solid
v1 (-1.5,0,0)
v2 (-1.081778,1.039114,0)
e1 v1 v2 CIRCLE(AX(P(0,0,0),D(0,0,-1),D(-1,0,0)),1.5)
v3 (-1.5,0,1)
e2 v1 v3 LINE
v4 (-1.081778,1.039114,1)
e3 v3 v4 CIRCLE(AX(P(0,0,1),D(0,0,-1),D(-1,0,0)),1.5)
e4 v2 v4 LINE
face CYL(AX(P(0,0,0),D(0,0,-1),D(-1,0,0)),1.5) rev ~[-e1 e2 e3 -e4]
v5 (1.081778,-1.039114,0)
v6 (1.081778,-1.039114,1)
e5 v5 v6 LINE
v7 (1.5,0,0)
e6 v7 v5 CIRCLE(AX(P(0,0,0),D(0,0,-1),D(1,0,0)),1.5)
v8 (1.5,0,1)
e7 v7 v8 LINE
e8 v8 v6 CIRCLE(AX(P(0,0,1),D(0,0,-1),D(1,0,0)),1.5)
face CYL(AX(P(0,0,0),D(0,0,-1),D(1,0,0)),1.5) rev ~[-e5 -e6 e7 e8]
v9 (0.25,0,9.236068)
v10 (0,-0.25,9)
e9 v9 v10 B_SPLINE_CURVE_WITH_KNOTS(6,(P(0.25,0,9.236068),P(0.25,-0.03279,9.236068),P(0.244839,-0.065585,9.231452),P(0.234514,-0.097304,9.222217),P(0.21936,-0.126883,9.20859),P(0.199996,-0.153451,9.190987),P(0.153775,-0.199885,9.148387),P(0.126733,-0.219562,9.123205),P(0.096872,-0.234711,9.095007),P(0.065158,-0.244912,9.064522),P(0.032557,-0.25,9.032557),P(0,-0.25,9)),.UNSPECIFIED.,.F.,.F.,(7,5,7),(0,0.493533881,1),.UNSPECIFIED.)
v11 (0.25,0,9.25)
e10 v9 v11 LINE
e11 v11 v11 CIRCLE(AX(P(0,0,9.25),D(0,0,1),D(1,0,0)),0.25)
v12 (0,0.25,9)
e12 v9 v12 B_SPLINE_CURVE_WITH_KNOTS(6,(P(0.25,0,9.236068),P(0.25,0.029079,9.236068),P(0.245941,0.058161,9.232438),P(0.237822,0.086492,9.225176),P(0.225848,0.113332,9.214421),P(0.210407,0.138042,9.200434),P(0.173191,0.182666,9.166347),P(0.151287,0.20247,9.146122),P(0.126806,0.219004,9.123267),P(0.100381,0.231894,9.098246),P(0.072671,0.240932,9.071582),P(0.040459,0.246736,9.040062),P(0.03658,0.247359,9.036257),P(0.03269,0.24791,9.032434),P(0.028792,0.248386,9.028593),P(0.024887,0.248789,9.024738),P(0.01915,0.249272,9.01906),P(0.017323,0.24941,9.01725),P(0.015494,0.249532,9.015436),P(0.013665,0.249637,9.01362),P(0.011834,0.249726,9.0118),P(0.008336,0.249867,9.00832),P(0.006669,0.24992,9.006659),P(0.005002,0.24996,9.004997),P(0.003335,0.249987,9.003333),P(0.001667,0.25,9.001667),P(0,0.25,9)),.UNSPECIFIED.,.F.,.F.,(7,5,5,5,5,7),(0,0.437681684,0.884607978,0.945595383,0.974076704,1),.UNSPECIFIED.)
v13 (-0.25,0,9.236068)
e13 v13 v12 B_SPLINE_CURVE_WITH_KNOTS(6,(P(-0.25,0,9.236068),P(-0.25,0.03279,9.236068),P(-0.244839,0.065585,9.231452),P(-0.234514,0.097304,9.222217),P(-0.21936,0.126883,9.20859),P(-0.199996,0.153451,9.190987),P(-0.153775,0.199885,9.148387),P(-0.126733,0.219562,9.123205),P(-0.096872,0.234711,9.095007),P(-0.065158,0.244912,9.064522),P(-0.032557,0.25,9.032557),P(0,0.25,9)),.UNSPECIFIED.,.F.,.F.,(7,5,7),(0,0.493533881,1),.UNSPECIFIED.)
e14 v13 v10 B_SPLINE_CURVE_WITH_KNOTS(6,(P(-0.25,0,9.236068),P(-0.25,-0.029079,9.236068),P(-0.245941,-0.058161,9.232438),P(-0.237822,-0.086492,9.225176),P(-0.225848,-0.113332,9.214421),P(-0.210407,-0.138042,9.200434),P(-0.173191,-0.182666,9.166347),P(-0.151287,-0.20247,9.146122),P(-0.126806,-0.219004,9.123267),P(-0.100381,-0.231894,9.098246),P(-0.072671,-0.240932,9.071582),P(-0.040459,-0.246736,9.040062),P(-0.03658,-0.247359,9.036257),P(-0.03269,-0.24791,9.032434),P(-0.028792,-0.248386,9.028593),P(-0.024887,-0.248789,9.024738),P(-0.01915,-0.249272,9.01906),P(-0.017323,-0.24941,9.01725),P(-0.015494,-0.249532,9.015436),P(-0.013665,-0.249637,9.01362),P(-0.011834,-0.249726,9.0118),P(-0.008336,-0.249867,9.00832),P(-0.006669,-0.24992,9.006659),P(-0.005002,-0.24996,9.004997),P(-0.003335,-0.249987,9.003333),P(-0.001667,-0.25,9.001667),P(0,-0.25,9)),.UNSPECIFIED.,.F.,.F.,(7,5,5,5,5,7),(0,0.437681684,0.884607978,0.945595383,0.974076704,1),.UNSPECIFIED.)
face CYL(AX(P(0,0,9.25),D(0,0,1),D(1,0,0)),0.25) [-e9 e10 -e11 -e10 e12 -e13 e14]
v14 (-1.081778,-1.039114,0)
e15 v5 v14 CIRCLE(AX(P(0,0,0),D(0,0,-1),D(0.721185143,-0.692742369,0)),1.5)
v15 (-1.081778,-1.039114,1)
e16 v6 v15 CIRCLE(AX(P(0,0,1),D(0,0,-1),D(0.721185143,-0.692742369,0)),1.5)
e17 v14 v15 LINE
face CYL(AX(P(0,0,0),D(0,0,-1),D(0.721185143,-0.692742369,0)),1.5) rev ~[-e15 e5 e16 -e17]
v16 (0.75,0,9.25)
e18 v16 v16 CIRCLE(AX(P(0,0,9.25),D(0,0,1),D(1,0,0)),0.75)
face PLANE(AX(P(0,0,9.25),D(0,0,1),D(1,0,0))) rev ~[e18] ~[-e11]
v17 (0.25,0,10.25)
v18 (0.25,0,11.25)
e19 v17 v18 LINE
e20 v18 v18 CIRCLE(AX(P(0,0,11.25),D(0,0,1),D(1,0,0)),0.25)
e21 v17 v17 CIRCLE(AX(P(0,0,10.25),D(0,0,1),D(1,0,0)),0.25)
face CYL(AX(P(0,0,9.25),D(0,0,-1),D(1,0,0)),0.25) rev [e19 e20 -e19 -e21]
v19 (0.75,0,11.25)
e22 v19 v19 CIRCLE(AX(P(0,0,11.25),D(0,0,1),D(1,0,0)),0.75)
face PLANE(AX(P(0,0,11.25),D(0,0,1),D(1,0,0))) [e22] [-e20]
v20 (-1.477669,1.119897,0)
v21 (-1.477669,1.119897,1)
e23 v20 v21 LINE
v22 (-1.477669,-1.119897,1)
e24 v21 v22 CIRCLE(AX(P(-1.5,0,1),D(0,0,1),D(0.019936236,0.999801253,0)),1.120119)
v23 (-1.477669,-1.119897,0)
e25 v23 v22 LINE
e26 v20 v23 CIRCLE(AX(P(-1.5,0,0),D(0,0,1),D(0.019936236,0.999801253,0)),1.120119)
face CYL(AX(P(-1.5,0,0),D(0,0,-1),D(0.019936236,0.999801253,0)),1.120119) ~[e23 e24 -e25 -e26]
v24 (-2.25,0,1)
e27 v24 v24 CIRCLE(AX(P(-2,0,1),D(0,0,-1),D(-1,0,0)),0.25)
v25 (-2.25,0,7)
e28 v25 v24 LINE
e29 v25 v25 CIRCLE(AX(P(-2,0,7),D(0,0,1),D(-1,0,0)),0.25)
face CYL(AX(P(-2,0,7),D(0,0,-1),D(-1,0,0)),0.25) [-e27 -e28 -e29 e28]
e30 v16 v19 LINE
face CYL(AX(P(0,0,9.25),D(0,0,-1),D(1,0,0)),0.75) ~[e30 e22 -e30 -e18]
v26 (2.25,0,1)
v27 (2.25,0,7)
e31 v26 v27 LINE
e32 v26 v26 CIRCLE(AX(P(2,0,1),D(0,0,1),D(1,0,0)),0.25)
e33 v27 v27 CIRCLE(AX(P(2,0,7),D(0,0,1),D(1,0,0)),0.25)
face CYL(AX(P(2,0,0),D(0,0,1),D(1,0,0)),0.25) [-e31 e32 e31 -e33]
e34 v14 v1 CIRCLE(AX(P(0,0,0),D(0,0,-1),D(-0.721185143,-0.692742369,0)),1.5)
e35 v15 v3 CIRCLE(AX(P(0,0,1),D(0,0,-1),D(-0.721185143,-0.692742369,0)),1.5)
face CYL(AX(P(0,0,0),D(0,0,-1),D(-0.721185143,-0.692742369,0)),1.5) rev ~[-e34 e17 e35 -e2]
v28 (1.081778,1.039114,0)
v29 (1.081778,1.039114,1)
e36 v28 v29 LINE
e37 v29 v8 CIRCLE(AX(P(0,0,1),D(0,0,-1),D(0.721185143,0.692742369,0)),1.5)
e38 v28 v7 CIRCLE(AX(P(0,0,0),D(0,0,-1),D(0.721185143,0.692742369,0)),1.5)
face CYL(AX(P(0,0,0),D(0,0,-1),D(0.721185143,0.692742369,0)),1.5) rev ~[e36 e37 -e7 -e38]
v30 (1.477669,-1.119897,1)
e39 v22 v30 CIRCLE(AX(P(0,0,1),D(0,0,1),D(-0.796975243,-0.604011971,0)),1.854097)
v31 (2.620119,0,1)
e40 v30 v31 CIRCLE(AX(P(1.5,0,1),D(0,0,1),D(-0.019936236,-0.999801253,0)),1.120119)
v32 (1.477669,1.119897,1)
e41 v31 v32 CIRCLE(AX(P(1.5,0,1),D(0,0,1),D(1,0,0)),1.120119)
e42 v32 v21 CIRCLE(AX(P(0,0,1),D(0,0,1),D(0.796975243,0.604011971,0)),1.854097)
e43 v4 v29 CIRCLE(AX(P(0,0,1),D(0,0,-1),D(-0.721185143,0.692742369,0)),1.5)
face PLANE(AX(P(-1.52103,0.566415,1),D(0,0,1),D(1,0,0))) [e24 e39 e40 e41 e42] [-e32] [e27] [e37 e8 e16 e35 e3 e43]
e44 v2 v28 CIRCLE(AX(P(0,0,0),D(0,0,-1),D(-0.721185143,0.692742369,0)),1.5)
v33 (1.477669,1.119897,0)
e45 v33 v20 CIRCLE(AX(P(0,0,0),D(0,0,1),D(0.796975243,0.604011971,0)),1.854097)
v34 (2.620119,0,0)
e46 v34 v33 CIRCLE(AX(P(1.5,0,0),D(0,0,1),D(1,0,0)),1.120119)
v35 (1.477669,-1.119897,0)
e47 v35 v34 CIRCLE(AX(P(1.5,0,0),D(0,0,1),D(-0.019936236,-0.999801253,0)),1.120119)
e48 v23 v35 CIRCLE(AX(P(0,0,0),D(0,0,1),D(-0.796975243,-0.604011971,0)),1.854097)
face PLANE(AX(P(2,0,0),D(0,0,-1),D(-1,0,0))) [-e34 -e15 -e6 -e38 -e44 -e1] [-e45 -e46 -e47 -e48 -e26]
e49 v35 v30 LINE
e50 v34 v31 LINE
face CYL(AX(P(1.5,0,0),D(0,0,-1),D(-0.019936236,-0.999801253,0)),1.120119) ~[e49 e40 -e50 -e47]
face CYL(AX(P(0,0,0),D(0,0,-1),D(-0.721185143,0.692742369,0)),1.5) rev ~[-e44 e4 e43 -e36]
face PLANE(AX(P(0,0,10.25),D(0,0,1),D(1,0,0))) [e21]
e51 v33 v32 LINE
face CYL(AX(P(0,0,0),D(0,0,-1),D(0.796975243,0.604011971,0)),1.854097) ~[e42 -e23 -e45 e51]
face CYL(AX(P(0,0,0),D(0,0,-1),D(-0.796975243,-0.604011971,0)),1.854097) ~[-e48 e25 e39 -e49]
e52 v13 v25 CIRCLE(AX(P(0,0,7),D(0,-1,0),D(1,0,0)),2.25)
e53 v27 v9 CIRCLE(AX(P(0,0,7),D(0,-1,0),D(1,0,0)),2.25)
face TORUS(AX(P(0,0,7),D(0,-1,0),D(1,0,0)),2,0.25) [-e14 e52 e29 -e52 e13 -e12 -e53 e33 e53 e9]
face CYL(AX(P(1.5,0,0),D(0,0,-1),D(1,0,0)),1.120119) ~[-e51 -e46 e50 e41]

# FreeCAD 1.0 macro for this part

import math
import FreeCAD as App
import Part
import Sketcher
from FreeCAD import Vector
Q = App.Units.Quantity

doc = App.newDocument("Part")
body = doc.addObject("PartDesign::Body", "Body")

# Sketch on XY plane
sketch1 = body.newObject("Sketcher::SketchObject", "Sketch")
sketch1.AttachmentSupport = (doc.getObject("XY_Plane"), [""])
sketch1.MapMode = "FlatFace"
sketch1.addGeometry([
    Part.ArcOfCircle(Part.Circle(Vector(0, 0, 0), Vector(0, 0, 1), 1.9), math.radians(37), math.radians(143)),  # 0
    Part.ArcOfCircle(Part.Circle(Vector(-1.5, 0, 0), Vector(0, 0, 1), 1.1), math.radians(89), math.radians(271)),  # 1
    Part.ArcOfCircle(Part.Circle(Vector(0, 0, 0), Vector(0, 0, 1), 1.9), math.radians(-143), math.radians(-37)),  # 2
    Part.ArcOfCircle(Part.Circle(Vector(1.5, 0, 0), Vector(0, 0, 1), 1.1), math.radians(-91), math.radians(0)),  # 3
    Part.ArcOfCircle(Part.Circle(Vector(1.5, 0, 0), Vector(0, 0, 1), 1.1), math.radians(0), math.radians(91)),  # 4
    Part.ArcOfCircle(Part.Circle(Vector(0, 0, 0), Vector(0, 0, 1), 1.5), math.radians(136), math.radians(180)),  # 5
    Part.ArcOfCircle(Part.Circle(Vector(0, 0, 0), Vector(0, 0, 1), 1.5), math.radians(44), math.radians(136)),  # 6
    Part.ArcOfCircle(Part.Circle(Vector(0, 0, 0), Vector(0, 0, 1), 1.5), math.radians(0), math.radians(44)),  # 7
    Part.ArcOfCircle(Part.Circle(Vector(0, 0, 0), Vector(0, 0, 1), 1.5), math.radians(-44), math.radians(0)),  # 8
    Part.ArcOfCircle(Part.Circle(Vector(0, 0, 0), Vector(0, 0, 1), 1.5), math.radians(-136), math.radians(-44)),  # 9
    Part.ArcOfCircle(Part.Circle(Vector(0, 0, 0), Vector(0, 0, 1), 1.5), math.radians(180), math.radians(224)),  # 10
], False)
sketch1.addConstraint([
    Sketcher.Constraint("Coincident", 0, 2, 1, 1),
    Sketcher.Constraint("Coincident", 1, 2, 2, 1),
    Sketcher.Constraint("Coincident", 2, 2, 3, 1),
    Sketcher.Constraint("Tangent", 3, 2, 4, 1),
    Sketcher.Constraint("Coincident", 4, 2, 0, 1),
    Sketcher.Constraint("Tangent", 5, 1, 6, 2),
    Sketcher.Constraint("Tangent", 6, 1, 7, 2),
    Sketcher.Constraint("Tangent", 7, 1, 8, 2),
    Sketcher.Constraint("Tangent", 8, 1, 9, 2),
    Sketcher.Constraint("Tangent", 9, 1, 10, 2),
    Sketcher.Constraint("Tangent", 10, 1, 5, 2),
    Sketcher.Constraint("Coincident", 0, 3, -1, 1),
    Sketcher.Constraint("Coincident", 2, 3, -1, 1),
    Sketcher.Constraint("Coincident", 5, 3, -1, 1),
    Sketcher.Constraint("Coincident", 7, 3, -1, 1),
    Sketcher.Constraint("Coincident", 7, 1, 3, 3),
    Sketcher.Constraint("Coincident", 10, 1, 1, 3),
    Sketcher.Constraint("Equal", 0, 2),
    Sketcher.Constraint("Equal", 1, 3),
    Sketcher.Constraint("Equal", 3, 4),
    Sketcher.Constraint("Equal", 7, 8),
    Sketcher.Constraint("PointOnObject", 1, 3, -1),
    Sketcher.Constraint("PointOnObject", 3, 3, -1),
    Sketcher.Constraint("PointOnObject", 3, 2, -1),
    Sketcher.Constraint("Horizontal", 5, 1, 6, 1),
    Sketcher.Constraint("Horizontal", 8, 1, 9, 1),
    Sketcher.Constraint("Vertical", 6, 1, 8, 1),
    Sketcher.Constraint("Radius", 5, Q("1.5 mm")),
    Sketcher.Constraint("Radius", 1, Q("1.120119 mm")),
    Sketcher.Constraint("Radius", 0, Q("1.854097 mm")),
    Sketcher.Constraint("DistanceX", 0, 2, 5, 1, Q("0.395891 mm")),
])
pad1 = body.newObject("PartDesign::Pad", "Pad")
pad1.Profile = sketch1
pad1.Length = 1

# Sketch on XY plane
sketch2 = body.newObject("Sketcher::SketchObject", "Sketch001")
sketch2.AttachmentSupport = (doc.getObject("XY_Plane"), [""])
sketch2.MapMode = "FlatFace"
sketch2.addGeometry(Part.Circle(Vector(2, 0, 0), Vector(0, 0, 1), 0.25), False)
sketch2.addConstraint([
    Sketcher.Constraint("PointOnObject", 0, 3, -1),
    Sketcher.Constraint("Diameter", 0, Q("0.5 mm")),
    Sketcher.Constraint("DistanceX", -1, 1, 0, 3, Q("2 mm")),
])

# Sketch on XZ plane
sketch3 = body.newObject("Sketcher::SketchObject", "Sketch002")
sketch3.AttachmentSupport = (doc.getObject("XZ_Plane"), [""])
sketch3.MapMode = "FlatFace"
sketch3.addGeometry([
    Part.LineSegment(Vector(2, 0, 0), Vector(2, 7, 0)),
    Part.ArcOfCircle(Part.Circle(Vector(0, 7, 0), Vector(0, 0, 1), 2), math.radians(0), math.radians(180)),
    Part.LineSegment(Vector(-2, 7, 0), Vector(-2, 0, 0)),
], False)
sketch3.addConstraint([
    Sketcher.Constraint("Tangent", 0, 2, 1, 1),
    Sketcher.Constraint("Tangent", 1, 2, 2, 1),
    Sketcher.Constraint("Vertical", 0),
    Sketcher.Constraint("Vertical", 2),
    Sketcher.Constraint("Symmetric", 0, 1, 2, 2, -1, 1),
    Sketcher.Constraint("PointOnObject", 0, 1, -1),
    Sketcher.Constraint("Radius", 1, Q("2 mm")),
    Sketcher.Constraint("DistanceY", 0, 1, 0, 2, Q("7 mm")),
])
doc.recompute()

additivepipe = body.newObject("PartDesign::AdditivePipe", "AdditivePipe")
additivepipe.Profile = sketch2
additivepipe.Spine = (sketch3, ["Edge1", "Edge2", "Edge3"])

# Sketch on XY plane
sketch4 = body.newObject("Sketcher::SketchObject", "Sketch003")
sketch4.AttachmentSupport = (doc.getObject("XY_Plane"), [""])
sketch4.MapMode = "FlatFace"
sketch4.AttachmentOffset = App.Placement(Vector(0, 0, 9.25), App.Rotation())
sketch4.addGeometry(Part.Circle(Vector(0, 0, 0), Vector(0, 0, 1), 0.25), False)
sketch4.addConstraint([
    Sketcher.Constraint("Coincident", 0, 3, -1, 1),
    Sketcher.Constraint("Diameter", 0, Q("0.5 mm")),
])
pad2 = body.newObject("PartDesign::Pad", "Pad001")
pad2.Profile = sketch4
pad2.Type = "TwoLengths"
pad2.Length = 1
pad2.Length2 = 0.25

# Sketch on XY plane
sketch5 = body.newObject("Sketcher::SketchObject", "Sketch004")
sketch5.AttachmentSupport = (doc.getObject("XY_Plane"), [""])
sketch5.MapMode = "FlatFace"
sketch5.AttachmentOffset = App.Placement(Vector(0, 0, 9.25), App.Rotation())
sketch5.addGeometry([
    Part.Circle(Vector(0, 0, 0), Vector(0, 0, 1), 0.75),
    Part.Circle(Vector(0, 0, 0), Vector(0, 0, 1), 0.25),
], False)
sketch5.addConstraint([
    Sketcher.Constraint("Coincident", 0, 3, -1, 1),
    Sketcher.Constraint("Coincident", 1, 3, -1, 1),
    Sketcher.Constraint("Diameter", 0, Q("1.5 mm")),
    Sketcher.Constraint("Diameter", 1, Q("0.5 mm")),
])
pad3 = body.newObject("PartDesign::Pad", "Pad002")
pad3.Profile = sketch5
pad3.Length = 2

doc.recompute()
